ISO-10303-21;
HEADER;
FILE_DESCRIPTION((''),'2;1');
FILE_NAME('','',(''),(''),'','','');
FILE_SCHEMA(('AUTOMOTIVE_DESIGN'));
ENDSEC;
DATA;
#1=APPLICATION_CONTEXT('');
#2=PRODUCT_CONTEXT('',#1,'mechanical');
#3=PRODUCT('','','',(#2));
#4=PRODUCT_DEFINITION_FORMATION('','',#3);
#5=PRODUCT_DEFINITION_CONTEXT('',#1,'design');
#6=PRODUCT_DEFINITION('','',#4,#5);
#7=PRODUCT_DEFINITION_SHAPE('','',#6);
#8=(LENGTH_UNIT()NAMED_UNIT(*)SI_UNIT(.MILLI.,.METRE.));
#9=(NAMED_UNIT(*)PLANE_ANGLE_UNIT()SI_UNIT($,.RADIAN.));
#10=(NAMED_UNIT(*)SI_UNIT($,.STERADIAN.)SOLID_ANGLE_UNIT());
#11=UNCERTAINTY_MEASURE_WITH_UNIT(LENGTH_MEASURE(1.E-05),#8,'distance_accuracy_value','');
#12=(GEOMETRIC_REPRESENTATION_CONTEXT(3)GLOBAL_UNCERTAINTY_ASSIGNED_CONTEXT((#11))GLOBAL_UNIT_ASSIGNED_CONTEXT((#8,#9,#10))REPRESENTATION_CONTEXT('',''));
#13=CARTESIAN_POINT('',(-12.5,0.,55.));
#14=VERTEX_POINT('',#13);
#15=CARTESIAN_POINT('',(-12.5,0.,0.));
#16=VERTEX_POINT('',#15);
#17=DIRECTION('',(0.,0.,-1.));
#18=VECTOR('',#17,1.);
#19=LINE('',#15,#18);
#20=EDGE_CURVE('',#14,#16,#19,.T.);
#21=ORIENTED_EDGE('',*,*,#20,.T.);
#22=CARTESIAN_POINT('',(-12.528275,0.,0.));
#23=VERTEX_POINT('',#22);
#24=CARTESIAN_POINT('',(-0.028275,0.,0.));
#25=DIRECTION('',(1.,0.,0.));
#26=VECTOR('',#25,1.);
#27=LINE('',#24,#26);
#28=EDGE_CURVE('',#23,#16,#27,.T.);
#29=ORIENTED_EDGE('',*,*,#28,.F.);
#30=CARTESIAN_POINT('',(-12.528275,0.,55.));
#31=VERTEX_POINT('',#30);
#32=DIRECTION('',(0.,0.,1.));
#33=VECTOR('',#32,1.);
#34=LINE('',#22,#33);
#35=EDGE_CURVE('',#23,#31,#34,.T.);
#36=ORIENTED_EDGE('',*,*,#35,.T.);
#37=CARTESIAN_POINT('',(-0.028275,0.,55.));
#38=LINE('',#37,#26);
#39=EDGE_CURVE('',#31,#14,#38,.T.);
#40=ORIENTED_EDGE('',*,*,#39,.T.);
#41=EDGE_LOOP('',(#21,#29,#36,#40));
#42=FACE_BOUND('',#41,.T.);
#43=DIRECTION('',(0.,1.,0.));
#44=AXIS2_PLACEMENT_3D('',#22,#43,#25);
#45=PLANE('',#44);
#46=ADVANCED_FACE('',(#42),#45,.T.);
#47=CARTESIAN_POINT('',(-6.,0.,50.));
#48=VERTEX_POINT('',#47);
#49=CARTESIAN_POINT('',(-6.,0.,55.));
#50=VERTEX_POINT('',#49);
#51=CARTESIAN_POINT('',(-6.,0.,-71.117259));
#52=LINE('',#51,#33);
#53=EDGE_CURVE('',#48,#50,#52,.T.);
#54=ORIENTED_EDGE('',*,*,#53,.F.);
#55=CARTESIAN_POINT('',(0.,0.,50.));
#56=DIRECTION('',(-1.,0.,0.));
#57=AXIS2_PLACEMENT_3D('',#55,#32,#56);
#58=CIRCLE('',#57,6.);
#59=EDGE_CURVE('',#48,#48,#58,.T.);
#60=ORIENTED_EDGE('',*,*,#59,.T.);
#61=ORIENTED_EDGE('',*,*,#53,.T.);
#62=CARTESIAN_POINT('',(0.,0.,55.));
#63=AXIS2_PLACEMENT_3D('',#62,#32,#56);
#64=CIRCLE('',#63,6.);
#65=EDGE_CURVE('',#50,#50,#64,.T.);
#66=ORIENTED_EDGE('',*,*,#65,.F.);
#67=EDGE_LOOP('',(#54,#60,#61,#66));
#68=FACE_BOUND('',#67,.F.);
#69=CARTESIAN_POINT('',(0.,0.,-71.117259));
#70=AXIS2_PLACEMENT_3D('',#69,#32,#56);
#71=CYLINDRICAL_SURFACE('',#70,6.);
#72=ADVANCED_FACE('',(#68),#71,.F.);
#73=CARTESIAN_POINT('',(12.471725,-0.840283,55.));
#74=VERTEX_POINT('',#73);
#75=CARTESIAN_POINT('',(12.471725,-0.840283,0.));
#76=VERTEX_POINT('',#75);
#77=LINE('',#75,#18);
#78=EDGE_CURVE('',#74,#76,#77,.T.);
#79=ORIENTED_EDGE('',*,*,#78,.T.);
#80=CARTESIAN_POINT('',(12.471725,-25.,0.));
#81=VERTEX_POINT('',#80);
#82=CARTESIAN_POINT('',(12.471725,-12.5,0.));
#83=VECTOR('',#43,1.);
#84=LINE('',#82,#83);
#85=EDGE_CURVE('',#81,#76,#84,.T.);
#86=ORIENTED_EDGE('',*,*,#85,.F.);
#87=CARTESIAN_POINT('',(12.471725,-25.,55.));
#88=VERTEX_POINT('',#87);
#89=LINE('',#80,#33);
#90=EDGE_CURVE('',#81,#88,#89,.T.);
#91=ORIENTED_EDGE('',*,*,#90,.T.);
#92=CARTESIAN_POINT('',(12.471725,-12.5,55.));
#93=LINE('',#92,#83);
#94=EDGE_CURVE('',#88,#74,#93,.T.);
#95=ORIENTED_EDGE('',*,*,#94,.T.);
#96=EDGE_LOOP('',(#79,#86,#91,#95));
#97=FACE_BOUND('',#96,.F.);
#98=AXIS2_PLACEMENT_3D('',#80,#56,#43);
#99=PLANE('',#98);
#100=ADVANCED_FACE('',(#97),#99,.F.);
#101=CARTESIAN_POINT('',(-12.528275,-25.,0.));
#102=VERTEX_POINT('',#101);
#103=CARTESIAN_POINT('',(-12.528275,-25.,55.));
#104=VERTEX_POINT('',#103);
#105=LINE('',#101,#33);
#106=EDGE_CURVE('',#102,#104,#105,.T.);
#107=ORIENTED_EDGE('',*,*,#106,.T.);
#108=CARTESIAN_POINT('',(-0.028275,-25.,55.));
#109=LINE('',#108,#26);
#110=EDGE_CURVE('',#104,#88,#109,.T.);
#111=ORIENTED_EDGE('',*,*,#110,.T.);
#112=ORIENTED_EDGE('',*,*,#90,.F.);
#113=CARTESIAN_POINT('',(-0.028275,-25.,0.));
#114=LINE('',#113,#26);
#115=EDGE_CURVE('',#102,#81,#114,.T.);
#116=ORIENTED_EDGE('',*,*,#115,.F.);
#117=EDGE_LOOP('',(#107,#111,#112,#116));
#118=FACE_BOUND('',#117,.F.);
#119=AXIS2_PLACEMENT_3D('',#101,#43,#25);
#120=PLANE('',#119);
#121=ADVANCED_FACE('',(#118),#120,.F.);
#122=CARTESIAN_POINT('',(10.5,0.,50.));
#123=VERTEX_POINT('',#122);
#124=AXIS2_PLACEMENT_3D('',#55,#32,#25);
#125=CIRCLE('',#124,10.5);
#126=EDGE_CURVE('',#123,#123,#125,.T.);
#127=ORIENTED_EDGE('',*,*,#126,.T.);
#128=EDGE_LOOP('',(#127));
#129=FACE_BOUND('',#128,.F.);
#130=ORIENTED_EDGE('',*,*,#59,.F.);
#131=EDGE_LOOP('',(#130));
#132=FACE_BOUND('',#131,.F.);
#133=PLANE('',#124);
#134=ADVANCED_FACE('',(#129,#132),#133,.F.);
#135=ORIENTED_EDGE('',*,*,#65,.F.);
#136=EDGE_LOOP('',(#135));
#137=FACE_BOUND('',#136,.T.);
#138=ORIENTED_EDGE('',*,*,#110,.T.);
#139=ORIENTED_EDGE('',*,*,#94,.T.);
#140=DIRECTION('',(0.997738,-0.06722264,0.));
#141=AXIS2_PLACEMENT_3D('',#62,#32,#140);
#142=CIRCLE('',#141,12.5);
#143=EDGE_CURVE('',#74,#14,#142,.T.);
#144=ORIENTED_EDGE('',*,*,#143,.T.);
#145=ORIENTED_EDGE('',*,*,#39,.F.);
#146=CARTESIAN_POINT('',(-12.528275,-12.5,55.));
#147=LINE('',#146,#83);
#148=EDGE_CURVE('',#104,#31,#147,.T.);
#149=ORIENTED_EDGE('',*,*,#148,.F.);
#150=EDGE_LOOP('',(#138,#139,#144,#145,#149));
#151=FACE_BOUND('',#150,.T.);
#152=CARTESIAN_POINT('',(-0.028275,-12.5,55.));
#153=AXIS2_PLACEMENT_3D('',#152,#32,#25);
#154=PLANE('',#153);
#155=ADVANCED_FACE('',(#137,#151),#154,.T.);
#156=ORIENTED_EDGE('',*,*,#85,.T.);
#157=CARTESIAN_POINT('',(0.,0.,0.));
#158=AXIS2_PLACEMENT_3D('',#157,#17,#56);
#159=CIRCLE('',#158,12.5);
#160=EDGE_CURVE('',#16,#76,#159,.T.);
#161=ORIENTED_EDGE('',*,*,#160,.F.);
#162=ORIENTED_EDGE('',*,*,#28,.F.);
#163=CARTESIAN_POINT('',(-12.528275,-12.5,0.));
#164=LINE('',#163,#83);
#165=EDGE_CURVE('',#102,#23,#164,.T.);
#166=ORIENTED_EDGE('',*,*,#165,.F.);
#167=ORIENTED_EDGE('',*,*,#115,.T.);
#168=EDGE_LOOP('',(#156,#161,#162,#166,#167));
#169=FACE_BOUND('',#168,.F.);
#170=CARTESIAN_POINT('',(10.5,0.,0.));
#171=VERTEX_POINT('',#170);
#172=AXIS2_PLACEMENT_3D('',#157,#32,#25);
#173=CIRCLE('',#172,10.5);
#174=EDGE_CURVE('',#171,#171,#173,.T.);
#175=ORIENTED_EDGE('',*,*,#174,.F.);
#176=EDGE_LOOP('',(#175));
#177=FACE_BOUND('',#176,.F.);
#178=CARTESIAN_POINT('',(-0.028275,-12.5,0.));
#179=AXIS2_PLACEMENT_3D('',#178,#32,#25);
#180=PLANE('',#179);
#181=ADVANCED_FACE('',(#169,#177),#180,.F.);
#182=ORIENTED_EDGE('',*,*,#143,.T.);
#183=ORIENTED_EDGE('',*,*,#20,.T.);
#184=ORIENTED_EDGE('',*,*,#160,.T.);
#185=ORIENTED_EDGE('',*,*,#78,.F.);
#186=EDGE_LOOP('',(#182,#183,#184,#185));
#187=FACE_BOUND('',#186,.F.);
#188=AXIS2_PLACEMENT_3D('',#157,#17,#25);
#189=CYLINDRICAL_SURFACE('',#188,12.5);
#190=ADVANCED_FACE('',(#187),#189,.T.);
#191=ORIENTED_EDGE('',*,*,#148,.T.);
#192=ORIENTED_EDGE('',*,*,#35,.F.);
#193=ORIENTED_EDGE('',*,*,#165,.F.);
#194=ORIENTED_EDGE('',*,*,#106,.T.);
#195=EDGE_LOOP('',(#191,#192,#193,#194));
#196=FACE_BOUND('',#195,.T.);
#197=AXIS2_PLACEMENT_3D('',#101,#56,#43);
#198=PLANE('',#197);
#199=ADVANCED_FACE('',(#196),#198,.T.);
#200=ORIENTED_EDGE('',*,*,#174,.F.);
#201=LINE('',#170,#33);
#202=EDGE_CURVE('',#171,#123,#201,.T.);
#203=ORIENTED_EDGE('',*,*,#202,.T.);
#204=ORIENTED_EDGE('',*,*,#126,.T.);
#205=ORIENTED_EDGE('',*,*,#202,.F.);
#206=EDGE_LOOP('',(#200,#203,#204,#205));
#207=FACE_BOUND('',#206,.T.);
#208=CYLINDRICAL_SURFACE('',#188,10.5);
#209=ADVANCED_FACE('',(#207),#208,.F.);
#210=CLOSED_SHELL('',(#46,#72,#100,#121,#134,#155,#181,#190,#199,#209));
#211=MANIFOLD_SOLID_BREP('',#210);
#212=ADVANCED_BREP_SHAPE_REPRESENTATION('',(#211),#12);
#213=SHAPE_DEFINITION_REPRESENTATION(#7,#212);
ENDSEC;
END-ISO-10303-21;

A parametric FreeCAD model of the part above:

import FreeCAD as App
import Part
import Sketcher

V = App.Vector

doc = App.newDocument("Part")
body = doc.addObject("PartDesign::Body", "Body")

# Sketch on XY plane
sketch1 = body.newObject("Sketcher::SketchObject", "Sketch")
sketch1.AttachmentSupport = (doc.getObject("XY_Plane"), [""])
sketch1.MapMode = "FlatFace"
sketch1.addGeometry(Part.Circle(V(0, 0, 0), V(0, 0, 1), 12), False)
sketch1.addConstraint([
    Sketcher.Constraint("Coincident", 0, 3, -1, 1),
    Sketcher.Constraint("Diameter", 0, 25.0),
])
pad1 = body.newObject("PartDesign::Pad", "Pad")
pad1.Profile = sketch1
pad1.Length = 55

# Sketch on XY plane
sketch2 = body.newObject("Sketcher::SketchObject", "Sketch001")
sketch2.AttachmentSupport = (doc.getObject("XY_Plane"), [""])
sketch2.MapMode = "FlatFace"
sketch2.addGeometry([
    Part.LineSegment(V(-13, 0, 0), V(-13, -25, 0)),
    Part.LineSegment(V(-13, -25, 0), V(12, -25, 0)),
    Part.LineSegment(V(12, -25, 0), V(12, 0, 0)),
    Part.LineSegment(V(12, 0, 0), V(-13, 0, 0)),
], False)
sketch2.addConstraint([
    Sketcher.Constraint("Coincident", 0, 2, 1, 1),
    Sketcher.Constraint("Coincident", 1, 2, 2, 1),
    Sketcher.Constraint("Coincident", 2, 2, 3, 1),
    Sketcher.Constraint("Coincident", 3, 2, 0, 1),
    Sketcher.Constraint("Vertical", 0),
    Sketcher.Constraint("Horizontal", 1),
    Sketcher.Constraint("Vertical", 2),
    Sketcher.Constraint("Horizontal", 3),
    Sketcher.Constraint("PointOnObject", 2, 2, -1),
    Sketcher.Constraint("Equal", 3, 0),
    Sketcher.Constraint("DistanceX", 1, 1, 1, 2, 25.0),
    Sketcher.Constraint("DistanceX", 0, 2, -1, 1, 12.528275),
])
pad2 = body.newObject("PartDesign::Pad", "Pad001")
pad2.Profile = sketch2
pad2.Length = 55

# Sketch on XY plane
sketch3 = body.newObject("Sketcher::SketchObject", "Sketch002")
sketch3.AttachmentSupport = (doc.getObject("XY_Plane"), [""])
sketch3.MapMode = "FlatFace"
sketch3.addGeometry(Part.Circle(V(0, 0, 0), V(0, 0, 1), 6), False)
sketch3.addConstraint([
    Sketcher.Constraint("Coincident", 0, 3, -1, 1),
    Sketcher.Constraint("Diameter", 0, 12.0),
])
doc.recompute()
hole = body.newObject("PartDesign::Hole", "Hole")
hole.Profile = sketch3
hole.ThreadType = "None"
hole.Diameter = 12
hole.DepthType = "ThroughAll"
hole.Reversed = True

# Sketch on XY plane
sketch4 = body.newObject("Sketcher::SketchObject", "Sketch003")
sketch4.AttachmentSupport = (doc.getObject("XY_Plane"), [""])
sketch4.MapMode = "FlatFace"
sketch4.addGeometry(Part.Circle(V(0, 0, 0), V(0, 0, 1), 10), False)
sketch4.addConstraint([
    Sketcher.Constraint("Coincident", 0, 3, -1, 1),
    Sketcher.Constraint("Diameter", 0, 21.0),
])
pocket1 = body.newObject("PartDesign::Pocket", "Pocket")
pocket1.Profile = sketch4
pocket1.Length = 50
pocket1.Reversed = True

doc.recompute()
